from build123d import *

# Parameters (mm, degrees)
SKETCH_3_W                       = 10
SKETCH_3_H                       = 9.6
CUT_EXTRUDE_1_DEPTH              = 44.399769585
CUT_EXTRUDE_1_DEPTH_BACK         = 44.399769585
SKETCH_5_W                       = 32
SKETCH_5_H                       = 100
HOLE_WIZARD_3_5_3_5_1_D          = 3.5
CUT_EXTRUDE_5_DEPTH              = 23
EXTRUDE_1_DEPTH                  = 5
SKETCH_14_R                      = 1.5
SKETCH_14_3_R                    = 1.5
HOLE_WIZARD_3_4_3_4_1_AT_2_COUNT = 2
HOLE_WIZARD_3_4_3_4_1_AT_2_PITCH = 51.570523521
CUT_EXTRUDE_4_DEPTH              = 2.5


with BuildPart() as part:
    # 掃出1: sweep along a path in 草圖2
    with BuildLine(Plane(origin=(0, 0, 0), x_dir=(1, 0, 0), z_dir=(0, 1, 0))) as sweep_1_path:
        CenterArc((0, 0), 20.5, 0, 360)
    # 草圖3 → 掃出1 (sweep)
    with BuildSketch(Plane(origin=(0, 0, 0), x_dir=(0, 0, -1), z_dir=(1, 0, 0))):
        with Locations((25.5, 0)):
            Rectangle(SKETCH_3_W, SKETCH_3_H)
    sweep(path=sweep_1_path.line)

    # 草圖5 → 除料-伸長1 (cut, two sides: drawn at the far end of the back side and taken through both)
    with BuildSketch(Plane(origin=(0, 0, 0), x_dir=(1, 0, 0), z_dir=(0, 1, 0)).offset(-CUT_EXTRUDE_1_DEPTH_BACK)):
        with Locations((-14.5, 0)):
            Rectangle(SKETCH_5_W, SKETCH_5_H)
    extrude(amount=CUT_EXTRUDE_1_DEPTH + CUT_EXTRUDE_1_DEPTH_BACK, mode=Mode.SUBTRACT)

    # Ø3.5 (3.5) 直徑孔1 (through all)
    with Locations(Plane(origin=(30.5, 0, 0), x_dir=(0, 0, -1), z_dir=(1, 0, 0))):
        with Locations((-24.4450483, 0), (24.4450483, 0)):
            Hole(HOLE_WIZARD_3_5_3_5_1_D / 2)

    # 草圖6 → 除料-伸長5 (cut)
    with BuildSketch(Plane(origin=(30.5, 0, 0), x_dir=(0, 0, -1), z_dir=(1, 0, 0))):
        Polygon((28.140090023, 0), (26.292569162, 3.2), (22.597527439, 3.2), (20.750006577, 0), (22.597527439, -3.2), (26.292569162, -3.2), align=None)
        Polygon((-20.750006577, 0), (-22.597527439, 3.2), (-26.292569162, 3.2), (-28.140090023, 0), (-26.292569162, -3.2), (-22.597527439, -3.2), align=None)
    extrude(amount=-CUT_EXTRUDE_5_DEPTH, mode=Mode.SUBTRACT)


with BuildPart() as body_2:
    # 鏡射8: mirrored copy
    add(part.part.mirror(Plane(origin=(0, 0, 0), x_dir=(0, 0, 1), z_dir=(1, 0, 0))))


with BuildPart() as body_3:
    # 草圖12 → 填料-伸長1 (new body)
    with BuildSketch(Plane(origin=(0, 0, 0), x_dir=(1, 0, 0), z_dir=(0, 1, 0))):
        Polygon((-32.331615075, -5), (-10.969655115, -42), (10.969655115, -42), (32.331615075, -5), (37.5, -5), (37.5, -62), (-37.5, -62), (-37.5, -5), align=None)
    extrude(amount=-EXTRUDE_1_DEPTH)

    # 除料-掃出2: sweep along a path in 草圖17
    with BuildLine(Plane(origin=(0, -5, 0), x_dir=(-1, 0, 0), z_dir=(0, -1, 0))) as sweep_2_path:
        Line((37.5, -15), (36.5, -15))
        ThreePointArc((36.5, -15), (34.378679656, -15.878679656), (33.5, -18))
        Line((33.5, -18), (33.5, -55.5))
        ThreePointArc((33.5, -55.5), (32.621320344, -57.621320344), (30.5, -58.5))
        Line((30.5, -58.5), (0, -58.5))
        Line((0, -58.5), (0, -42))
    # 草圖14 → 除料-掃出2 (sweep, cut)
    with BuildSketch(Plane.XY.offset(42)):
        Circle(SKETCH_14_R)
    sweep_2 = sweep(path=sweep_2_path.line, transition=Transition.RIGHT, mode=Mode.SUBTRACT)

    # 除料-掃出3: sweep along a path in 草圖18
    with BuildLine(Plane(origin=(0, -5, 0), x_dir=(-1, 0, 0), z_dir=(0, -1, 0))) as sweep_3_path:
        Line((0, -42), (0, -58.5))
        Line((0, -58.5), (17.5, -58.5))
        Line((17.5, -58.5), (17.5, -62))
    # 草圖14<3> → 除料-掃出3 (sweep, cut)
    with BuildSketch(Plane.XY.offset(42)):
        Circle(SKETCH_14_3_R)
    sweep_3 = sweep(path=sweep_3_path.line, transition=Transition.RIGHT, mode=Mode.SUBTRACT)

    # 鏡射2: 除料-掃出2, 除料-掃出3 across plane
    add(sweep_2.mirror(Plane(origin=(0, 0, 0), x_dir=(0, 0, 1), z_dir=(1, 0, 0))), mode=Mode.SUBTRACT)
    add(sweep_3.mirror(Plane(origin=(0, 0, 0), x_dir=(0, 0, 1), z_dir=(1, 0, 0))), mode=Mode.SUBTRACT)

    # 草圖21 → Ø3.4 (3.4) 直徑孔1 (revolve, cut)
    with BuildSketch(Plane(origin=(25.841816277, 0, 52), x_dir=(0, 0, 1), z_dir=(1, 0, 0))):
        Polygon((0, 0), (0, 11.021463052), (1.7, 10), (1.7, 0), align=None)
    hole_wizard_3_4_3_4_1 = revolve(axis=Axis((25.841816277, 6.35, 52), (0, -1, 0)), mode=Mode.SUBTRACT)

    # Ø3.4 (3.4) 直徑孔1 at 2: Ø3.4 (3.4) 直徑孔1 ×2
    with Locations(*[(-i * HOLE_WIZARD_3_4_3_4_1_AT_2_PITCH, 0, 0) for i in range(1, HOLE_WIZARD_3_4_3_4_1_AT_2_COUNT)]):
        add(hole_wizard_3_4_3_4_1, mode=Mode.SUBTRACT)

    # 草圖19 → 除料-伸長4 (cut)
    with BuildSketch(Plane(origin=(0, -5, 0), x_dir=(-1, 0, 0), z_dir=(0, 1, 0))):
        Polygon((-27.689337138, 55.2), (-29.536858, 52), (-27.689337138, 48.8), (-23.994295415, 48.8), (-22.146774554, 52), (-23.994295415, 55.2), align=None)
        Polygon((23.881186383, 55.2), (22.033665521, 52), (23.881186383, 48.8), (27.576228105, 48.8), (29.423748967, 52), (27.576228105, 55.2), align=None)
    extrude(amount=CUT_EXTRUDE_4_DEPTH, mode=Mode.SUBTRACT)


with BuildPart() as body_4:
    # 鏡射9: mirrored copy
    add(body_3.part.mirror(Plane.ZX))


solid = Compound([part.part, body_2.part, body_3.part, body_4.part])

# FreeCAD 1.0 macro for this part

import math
import FreeCAD as App
import Part
import Sketcher
Q = App.Units.Quantity


def add_polygon(sketch, points):
    """Adds a closed chain of lines whose ends are joined by coincident constraints."""
    first, n = sketch.GeometryCount, len(points)
    for a, b in zip(points, points[1:] + points[:1]):
        sketch.addGeometry(Part.LineSegment(App.Vector(*a, 0), App.Vector(*b, 0)), False)
    for i in range(n):
        sketch.addConstraint(Sketcher.Constraint("Coincident", first + i, 2, first + (i + 1) % n, 1))

doc = App.newDocument("Part")
body = doc.addObject("PartDesign::Body", "Body")

sketch1 = body.newObject("Sketcher::SketchObject", "Sketch")
sketch1.AttachmentSupport = (doc.getObject("YZ_Plane"), [""])
sketch1.MapMode = "FlatFace"
add_polygon(sketch1, [(4.8, -20.5), (-4.8, -20.5), (-4.8, -30.5), (4.8, -30.5)])
sketch1.addConstraint([
    Sketcher.Constraint("Horizontal", 0),
    Sketcher.Constraint("Vertical", 1),
    Sketcher.Constraint("Horizontal", 2),
    Sketcher.Constraint("Vertical", 3),
    Sketcher.Constraint("DistanceY", 1, 2, 1, 1, Q("10 mm")),
    Sketcher.Constraint("DistanceX", 0, 2, 0, 1, Q("9.6 mm")),
    Sketcher.Constraint("DistanceX", 0, 2, -1, 1, Q("4.8 mm")),
    Sketcher.Constraint("DistanceY", 0, 2, -1, 1, Q("20.5 mm")),
])

sketch2 = body.newObject("Sketcher::SketchObject", "Sketch001")
sketch2.AttachmentSupport = (doc.getObject("XZ_Plane"), [""])
sketch2.MapMode = "FlatFace"
sketch2.addGeometry(Part.Circle(App.Vector(0, 0, 0), App.Vector(0, 0, 1), 20.5), False)
sketch2.addConstraint([
    Sketcher.Constraint("Coincident", 0, 3, -1, 1),
    Sketcher.Constraint("Diameter", 0, Q("41 mm")),
])
doc.recompute()

additivepipe = body.newObject("PartDesign::AdditivePipe", "AdditivePipe")
additivepipe.Profile = sketch1
additivepipe.Spine = (sketch2, ["Edge1"])

sketch3 = body.newObject("Sketcher::SketchObject", "Sketch002")
sketch3.AttachmentSupport = (doc.getObject("XZ_Plane"), [""])
sketch3.MapMode = "FlatFace"
add_polygon(sketch3, [(-30.5, -50), (-30.5, 50), (1.5, 50), (1.5, -50)])
sketch3.addConstraint([
    Sketcher.Constraint("Vertical", 0),
    Sketcher.Constraint("Horizontal", 1),
    Sketcher.Constraint("Vertical", 2),
    Sketcher.Constraint("Horizontal", 3),
    Sketcher.Constraint("DistanceX", 1, 1, 1, 2, Q("32 mm")),
    Sketcher.Constraint("DistanceY", 0, 1, 0, 2, Q("100 mm")),
    Sketcher.Constraint("DistanceY", -1, 1, 0, 2, Q("50 mm")),
    Sketcher.Constraint("DistanceX", 0, 2, -1, 1, Q("30.5 mm")),
])
pocket1 = body.newObject("PartDesign::Pocket", "Pocket")
pocket1.Profile = sketch3
pocket1.Type = "ThroughAll"
pocket1.Midplane = True

sketch4 = body.newObject("Sketcher::SketchObject", "Sketch003")
sketch4.AttachmentSupport = (doc.getObject("YZ_Plane"), [""])
sketch4.MapMode = "FlatFace"
sketch4.AttachmentOffset = App.Placement(App.Vector(0, 0, 30.5), App.Rotation())
sketch4.addGeometry([
    Part.Circle(App.Vector(0, 24.445048, 0), App.Vector(0, 0, 1), 1.75),
    Part.Circle(App.Vector(0, -24.445048, 0), App.Vector(0, 0, 1), 1.75),
], False)
sketch4.addConstraint([
    Sketcher.Constraint("Equal", 0, 1),
    Sketcher.Constraint("Symmetric", 0, 3, 1, 3, -1, 1),
    Sketcher.Constraint("PointOnObject", 0, 3, -2),
    Sketcher.Constraint("Diameter", 0, Q("3.5 mm")),
    Sketcher.Constraint("DistanceY", -1, 1, 0, 3, Q("24.445048 mm")),
])
doc.recompute()
hole = body.newObject("PartDesign::Hole", "Hole")
hole.Profile = sketch4
hole.ThreadType = "None"
hole.Diameter = 3.5
hole.DepthType = "ThroughAll"

sketch5 = body.newObject("Sketcher::SketchObject", "Sketch004")
sketch5.AttachmentSupport = (doc.getObject("YZ_Plane"), [""])
sketch5.MapMode = "FlatFace"
sketch5.AttachmentOffset = App.Placement(App.Vector(0, 0, 30.5), App.Rotation())
add_polygon(sketch5, [(0, -28.14009), (3.2, -26.292569), (3.2, -22.597527), (0, -20.750007), (-3.2, -22.597527), (-3.2, -26.292569)])
add_polygon(sketch5, [(0, 20.750007), (3.2, 22.597527), (3.2, 26.292569), (0, 28.14009), (-3.2, 26.292569), (-3.2, 22.597527)])
sketch5.addConstraint([
    Sketcher.Constraint("Vertical", 1),
    Sketcher.Constraint("Vertical", 4),
    Sketcher.Constraint("Vertical", 7),
    Sketcher.Constraint("Vertical", 10),
    Sketcher.Constraint("Symmetric", 3, 2, 6, 2, -1, 1),
    Sketcher.Constraint("Symmetric", 5, 2, 8, 2, -1, 1),
    Sketcher.Constraint("Symmetric", 0, 2, 9, 2, -1, 1),
    Sketcher.Constraint("Symmetric", 2, 2, 11, 2, -1, 1),
    Sketcher.Constraint("Symmetric", 1, 2, 3, 2, -2),
    Sketcher.Constraint("PointOnObject", 2, 2, -2),
    Sketcher.Constraint("PointOnObject", 5, 2, -2),
    Sketcher.Constraint("Parallel", 0, 3),
    Sketcher.Constraint("Parallel", 2, 5),
    Sketcher.Constraint("Parallel", 5, 8),
    Sketcher.Constraint("Parallel", 8, 11),
    Sketcher.Constraint("Angle", 0, Q("30 deg")),
    Sketcher.Constraint("DistanceX", -1, 1, 0, 2, Q("3.2 mm")),
    Sketcher.Constraint("DistanceY", 1, 1, 1, 2, Q("3.695042 mm")),
    Sketcher.Constraint("DistanceY", 0, 2, -1, 1, Q("26.292569 mm")),
])
pocket2 = body.newObject("PartDesign::Pocket", "Pocket001")
pocket2.Profile = sketch5
pocket2.Length = 23
body2 = doc.addObject("PartDesign::Body", "Body001")
doc.recompute()

mirroring = doc.addObject("Part::Mirroring", "Mirroring")
mirroring.Source = body
mirroring.Base = App.Vector(0, 0, 0)
mirroring.Normal = App.Vector(1, 0, 0)
body2.BaseFeature = mirroring
doc.recompute()
body3 = doc.addObject("PartDesign::Body", "Body002")

sketch6 = body3.newObject("Sketcher::SketchObject", "Sketch005")
sketch6.AttachmentSupport = (doc.getObject("XZ_Plane002"), [""])
sketch6.MapMode = "FlatFace"
add_polygon(sketch6, [(-10.969655, 42), (-32.331615, 5), (-37.5, 5), (-37.5, 62), (37.5, 62), (37.5, 5), (32.331615, 5), (10.969655, 42)])
sketch6.addConstraint([
    Sketcher.Constraint("Horizontal", 1),
    Sketcher.Constraint("Vertical", 2),
    Sketcher.Constraint("Horizontal", 3),
    Sketcher.Constraint("Vertical", 4),
    Sketcher.Constraint("Horizontal", 5),
    Sketcher.Constraint("Horizontal", 7),
    Sketcher.Constraint("Symmetric", 1, 2, 4, 2, -2),
    Sketcher.Constraint("Equal", 1, 5),
    Sketcher.Constraint("Equal", 0, 6),
    Sketcher.Constraint("DistanceX", 3, 1, 3, 2, Q("75 mm")),
    Sketcher.Constraint("DistanceY", 2, 1, 2, 2, Q("57 mm")),
    Sketcher.Constraint("Angle", 0, Q("-120 deg")),
    Sketcher.Constraint("DistanceY", -1, 1, 0, 2, Q("5 mm")),
    Sketcher.Constraint("DistanceY", -1, 1, 6, 2, Q("42 mm")),
    Sketcher.Constraint("DistanceX", 7, 2, 7, 1, Q("21.93931 mm")),
])
pad1 = body3.newObject("PartDesign::Pad", "Pad")
pad1.Profile = sketch6
pad1.Length = 5

sketch7 = body3.newObject("Sketcher::SketchObject", "Sketch006")
sketch7.AttachmentSupport = (doc.getObject("XY_Plane002"), [""])
sketch7.MapMode = "FlatFace"
sketch7.AttachmentOffset = App.Placement(App.Vector(0, 0, 42), App.Rotation())
sketch7.addGeometry(Part.Circle(App.Vector(0, 0, 0), App.Vector(0, 0, 1), 1.5), False)
sketch7.addConstraint([
    Sketcher.Constraint("Coincident", 0, 3, -1, 1),
    Sketcher.Constraint("Diameter", 0, Q("3 mm")),
])

sketch8 = body3.newObject("Sketcher::SketchObject", "Sketch007")
sketch8.AttachmentSupport = (doc.getObject("XZ_Plane002"), [""])
sketch8.MapMode = "FlatFace"
sketch8.AttachmentOffset = App.Placement(App.Vector(0, 0, 5), App.Rotation())
sketch8.addGeometry([
    Part.LineSegment(App.Vector(-37.5, 15, 0), App.Vector(-36.5, 15, 0)),
    Part.ArcOfCircle(Part.Circle(App.Vector(-36.5, 18, 0), App.Vector(0, 0, 1), 3), math.radians(-90), math.radians(0)),
    Part.LineSegment(App.Vector(-33.5, 18, 0), App.Vector(-33.5, 55.5, 0)),
    Part.ArcOfCircle(Part.Circle(App.Vector(-30.5, 55.5, 0), App.Vector(0, 0, 1), 3), math.radians(90), math.radians(180)),
    Part.LineSegment(App.Vector(-30.5, 58.5, 0), App.Vector(0, 58.5, 0)),
    Part.LineSegment(App.Vector(0, 58.5, 0), App.Vector(0, 42, 0)),
], False)
sketch8.addConstraint([
    Sketcher.Constraint("Tangent", 0, 2, 1, 1),
    Sketcher.Constraint("Tangent", 1, 2, 2, 1),
    Sketcher.Constraint("Tangent", 2, 2, 3, 2),
    Sketcher.Constraint("Tangent", 3, 1, 4, 1),
    Sketcher.Constraint("Coincident", 4, 2, 5, 1),
    Sketcher.Constraint("Horizontal", 0),
    Sketcher.Constraint("Vertical", 2),
    Sketcher.Constraint("Horizontal", 4),
    Sketcher.Constraint("Vertical", 5),
    Sketcher.Constraint("Equal", 1, 3),
    Sketcher.Constraint("PointOnObject", 4, 2, -2),
    Sketcher.Constraint("Radius", 1, Q("3 mm")),
    Sketcher.Constraint("DistanceX", 0, 1, 0, 2, Q("1 mm")),
    Sketcher.Constraint("DistanceX", 4, 1, 4, 2, Q("30.5 mm")),
    Sketcher.Constraint("DistanceY", 2, 1, 2, 2, Q("37.5 mm")),
    Sketcher.Constraint("DistanceY", 5, 2, 5, 1, Q("16.5 mm")),
    Sketcher.Constraint("DistanceY", -1, 1, 1, 3, Q("18 mm")),
])
doc.recompute()

subtractivepipe = body3.newObject("PartDesign::SubtractivePipe", "SubtractivePipe")
subtractivepipe.Profile = sketch7
subtractivepipe.Spine = (sketch8, ["Edge1", "Edge2", "Edge3", "Edge4", "Edge5", "Edge6"])
subtractivepipe.Transition = "Right corner"

sketch9 = body3.newObject("Sketcher::SketchObject", "Sketch008")
sketch9.AttachmentSupport = (doc.getObject("XY_Plane002"), [""])
sketch9.MapMode = "FlatFace"
sketch9.AttachmentOffset = App.Placement(App.Vector(0, 0, 42), App.Rotation())
sketch9.addGeometry(Part.Circle(App.Vector(0, 0, 0), App.Vector(0, 0, 1), 1.5), False)
sketch9.addConstraint([
    Sketcher.Constraint("Coincident", 0, 3, -1, 1),
    Sketcher.Constraint("Diameter", 0, Q("3 mm")),
])

sketch10 = body3.newObject("Sketcher::SketchObject", "Sketch009")
sketch10.AttachmentSupport = (doc.getObject("XZ_Plane002"), [""])
sketch10.MapMode = "FlatFace"
sketch10.AttachmentOffset = App.Placement(App.Vector(0, 0, 5), App.Rotation())
sketch10.addGeometry([
    Part.LineSegment(App.Vector(0, 42, 0), App.Vector(0, 58.5, 0)),
    Part.LineSegment(App.Vector(0, 58.5, 0), App.Vector(-17.5, 58.5, 0)),
    Part.LineSegment(App.Vector(-17.5, 58.5, 0), App.Vector(-17.5, 62, 0)),
], False)
sketch10.addConstraint([
    Sketcher.Constraint("Coincident", 0, 2, 1, 1),
    Sketcher.Constraint("Coincident", 1, 2, 2, 1),
    Sketcher.Constraint("Vertical", 0),
    Sketcher.Constraint("Horizontal", 1),
    Sketcher.Constraint("Vertical", 2),
    Sketcher.Constraint("PointOnObject", 0, 1, -2),
    Sketcher.Constraint("DistanceX", 1, 2, 1, 1, Q("17.5 mm")),
    Sketcher.Constraint("DistanceY", 0, 1, 0, 2, Q("16.5 mm")),
    Sketcher.Constraint("DistanceY", 2, 1, 2, 2, Q("3.5 mm")),
    Sketcher.Constraint("DistanceY", -1, 1, 0, 1, Q("42 mm")),
])
doc.recompute()

subtractivepipe2 = body3.newObject("PartDesign::SubtractivePipe", "SubtractivePipe001")
subtractivepipe2.Profile = sketch9
subtractivepipe2.Spine = (sketch10, ["Edge1", "Edge2", "Edge3"])
subtractivepipe2.Transition = "Right corner"
doc.recompute()

mirrored = body3.newObject("PartDesign::Mirrored", "Mirrored")
mirrored.Originals = [subtractivepipe, subtractivepipe2]
mirrored.MirrorPlane = (doc.getObject("YZ_Plane002"), [""])
body3.Tip = mirrored

sketch11 = body3.newObject("Sketcher::SketchObject", "Sketch010")
sketch11.AttachmentSupport = (doc.getObject("YZ_Plane002"), [""])
sketch11.MapMode = "FlatFace"
sketch11.AttachmentOffset = App.Placement(App.Vector(0, 0, 25.841816), App.Rotation())
add_polygon(sketch11, [(-11.021463, 52), (0, 52), (0, 53.7), (-10, 53.7)])
sketch11.addGeometry(Part.LineSegment(App.Vector(0, 52, 0), App.Vector(-11.021463, 52, 0)), True)
sketch11.addConstraint([
    Sketcher.Constraint("Horizontal", 0),
    Sketcher.Constraint("Vertical", 1),
    Sketcher.Constraint("Horizontal", 2),
    Sketcher.Constraint("Horizontal", 4),
    Sketcher.Constraint("Coincident", 4, 1, 0, 2),
    Sketcher.Constraint("PointOnObject", 0, 2, -2),
    Sketcher.Constraint("Equal", 0, 4),
    Sketcher.Constraint("DistanceX", 2, 2, 2, 1, Q("10 mm")),
    Sketcher.Constraint("Angle", 3, Q("-121 deg")),
    Sketcher.Constraint("DistanceY", 1, 1, 1, 2, Q("1.7 mm")),
    Sketcher.Constraint("DistanceY", -1, 1, 0, 2, Q("52 mm")),
])
groove = body3.newObject("PartDesign::Groove", "Groove")
groove.Profile = sketch11
groove.ReferenceAxis = (sketch11, ["Axis0"])
groove.Angle = 360
doc.recompute()

linearpattern = body3.newObject("PartDesign::LinearPattern", "LinearPattern")
linearpattern.Originals = [groove]
linearpattern.Direction = (doc.getObject("X_Axis002"), [""])
linearpattern.Mode = "offset"
linearpattern.Offset = 51.570524
linearpattern.Occurrences = 2
linearpattern.Reversed = True
body3.Tip = linearpattern

sketch12 = body3.newObject("Sketcher::SketchObject", "Sketch011")
sketch12.AttachmentSupport = (doc.getObject("XZ_Plane002"), [""])
sketch12.MapMode = "FlatFace"
sketch12.AttachmentOffset = App.Placement(App.Vector(0, 0, 5), App.Rotation())
add_polygon(sketch12, [(27.689337, 55.2), (29.536858, 52), (27.689337, 48.8), (23.994295, 48.8), (22.146775, 52), (23.994295, 55.2)])
add_polygon(sketch12, [(-23.881186, 55.2), (-22.033666, 52), (-23.881186, 48.8), (-27.576228, 48.8), (-29.423749, 52), (-27.576228, 55.2)])
sketch12.addConstraint([
    Sketcher.Constraint("Horizontal", 2),
    Sketcher.Constraint("Horizontal", 5),
    Sketcher.Constraint("Horizontal", 8),
    Sketcher.Constraint("Horizontal", 11),
    Sketcher.Constraint("Parallel", 0, 3),
    Sketcher.Constraint("Parallel", 1, 4),
    Sketcher.Constraint("Parallel", 3, 6),
    Sketcher.Constraint("Parallel", 4, 7),
    Sketcher.Constraint("Parallel", 6, 9),
    Sketcher.Constraint("Parallel", 7, 10),
    Sketcher.Constraint("Horizontal", 0, 2, 3, 2),
    Sketcher.Constraint("Horizontal", 3, 2, 6, 2),
    Sketcher.Constraint("Horizontal", 2, 2, 7, 2),
    Sketcher.Constraint("Horizontal", 6, 2, 9, 2),
    Sketcher.Constraint("Horizontal", 5, 2, 10, 2),
    Sketcher.Constraint("Vertical", 2, 2, 4, 2),
    Sketcher.Constraint("Vertical", 1, 2, 5, 2),
    Sketcher.Constraint("Equal", 5, 8),
    Sketcher.Constraint("Angle", 0, Q("-60 deg")),
    Sketcher.Constraint("DistanceY", -1, 1, 0, 2, Q("52 mm")),
    Sketcher.Constraint("DistanceY", -1, 1, 1, 2, Q("48.8 mm")),
    Sketcher.Constraint("DistanceX", 2, 2, 2, 1, Q("3.695042 mm")),
    Sketcher.Constraint("DistanceX", 8, 2, -1, 1, Q("27.576228 mm")),
    Sketcher.Constraint("DistanceX", 6, 2, 3, 2, Q("44.18044 mm")),
])
pocket3 = body3.newObject("PartDesign::Pocket", "Pocket002")
pocket3.Profile = sketch12
pocket3.Length = 2.5
body4 = doc.addObject("PartDesign::Body", "Body003")
doc.recompute()

mirroring2 = doc.addObject("Part::Mirroring", "Mirroring001")
mirroring2.Source = body3
mirroring2.Base = App.Vector(0, 0, 0)
mirroring2.Normal = App.Vector(0, 1, 0)
body4.BaseFeature = mirroring2
doc.recompute()
mirroring.Visibility = False
mirroring2.Visibility = False

doc.recompute()
